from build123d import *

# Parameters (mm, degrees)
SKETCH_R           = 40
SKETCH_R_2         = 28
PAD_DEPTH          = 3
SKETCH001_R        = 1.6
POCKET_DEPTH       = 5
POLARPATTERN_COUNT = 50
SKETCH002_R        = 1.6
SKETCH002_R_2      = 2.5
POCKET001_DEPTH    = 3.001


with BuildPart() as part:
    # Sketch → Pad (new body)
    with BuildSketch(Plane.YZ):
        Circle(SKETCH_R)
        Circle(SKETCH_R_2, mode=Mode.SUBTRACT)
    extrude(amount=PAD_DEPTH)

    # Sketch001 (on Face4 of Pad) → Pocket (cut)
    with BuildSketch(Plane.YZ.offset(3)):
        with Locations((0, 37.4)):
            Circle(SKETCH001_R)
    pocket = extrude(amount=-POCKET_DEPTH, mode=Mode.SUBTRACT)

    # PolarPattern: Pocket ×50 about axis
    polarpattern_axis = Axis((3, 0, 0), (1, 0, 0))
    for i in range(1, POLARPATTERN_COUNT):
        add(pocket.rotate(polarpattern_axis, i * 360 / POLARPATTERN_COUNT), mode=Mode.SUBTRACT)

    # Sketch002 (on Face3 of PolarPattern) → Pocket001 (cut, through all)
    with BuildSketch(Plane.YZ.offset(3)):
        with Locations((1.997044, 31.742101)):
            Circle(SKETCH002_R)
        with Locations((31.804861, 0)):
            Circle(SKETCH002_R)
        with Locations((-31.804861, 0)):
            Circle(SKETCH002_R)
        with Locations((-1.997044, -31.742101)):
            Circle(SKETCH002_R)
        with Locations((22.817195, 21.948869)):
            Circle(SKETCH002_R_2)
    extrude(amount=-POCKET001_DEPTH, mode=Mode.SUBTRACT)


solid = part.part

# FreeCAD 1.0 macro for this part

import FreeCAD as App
import Part
import Sketcher
from FreeCAD import Vector
Q = App.Units.Quantity

doc = App.newDocument("Part")
body = doc.addObject("PartDesign::Body", "Body")

sketch1 = body.newObject("Sketcher::SketchObject", "Sketch")
sketch1.AttachmentSupport = (doc.getObject("YZ_Plane"), [""])
sketch1.MapMode = "FlatFace"
sketch1.addGeometry([
    Part.Circle(Vector(0, 0, 0), Vector(0, 0, 1), 40),
    Part.Circle(Vector(0, 0, 0), Vector(0, 0, 1), 28),
], False)
sketch1.addConstraint([
    Sketcher.Constraint("Coincident", 0, 3, -1, 1),
    Sketcher.Constraint("Coincident", 1, 3, -1, 1),
    Sketcher.Constraint("Diameter", 0, Q("80 mm")),
    Sketcher.Constraint("Diameter", 1, Q("56 mm")),
])
pad1 = body.newObject("PartDesign::Pad", "Pad")
pad1.Profile = sketch1
pad1.Length = 3

sketch2 = body.newObject("Sketcher::SketchObject", "Sketch001")
sketch2.AttachmentSupport = (doc.getObject("YZ_Plane"), [""])
sketch2.MapMode = "FlatFace"
sketch2.AttachmentOffset = App.Placement(Vector(0, 0, 3), App.Rotation())
sketch2.addGeometry(Part.Circle(Vector(0, 37.4, 0), Vector(0, 0, 1), 1.6), False)
sketch2.addConstraint([
    Sketcher.Constraint("PointOnObject", 0, 3, -2),
    Sketcher.Constraint("Diameter", 0, Q("3.2 mm")),
    Sketcher.Constraint("DistanceY", -1, 1, 0, 3, Q("37.4 mm")),
])
pocket1 = body.newObject("PartDesign::Pocket", "Pocket")
pocket1.Profile = sketch2
pocket1.Length = 5
doc.recompute()

polarpattern = body.newObject("PartDesign::PolarPattern", "PolarPattern")
polarpattern.Originals = [pocket1]
polarpattern.Axis = (doc.getObject("X_Axis"), [""])
polarpattern.Angle = 360
polarpattern.Occurrences = 50
body.Tip = polarpattern

sketch3 = body.newObject("Sketcher::SketchObject", "Sketch002")
sketch3.AttachmentSupport = (doc.getObject("YZ_Plane"), [""])
sketch3.MapMode = "FlatFace"
sketch3.AttachmentOffset = App.Placement(Vector(0, 0, 3), App.Rotation())
sketch3.addGeometry([
    Part.Circle(Vector(1.997044, 31.742101, 0), Vector(0, 0, 1), 1.6),
    Part.Circle(Vector(31.804861, 0, 0), Vector(0, 0, 1), 1.6),
    Part.Circle(Vector(-31.804861, 0, 0), Vector(0, 0, 1), 1.6),
    Part.Circle(Vector(-1.997044, -31.742101, 0), Vector(0, 0, 1), 1.6),
    Part.Circle(Vector(22.817195, 21.948869, 0), Vector(0, 0, 1), 2.5),
], False)
sketch3.addConstraint([
    Sketcher.Constraint("Equal", 0, 1),
    Sketcher.Constraint("Equal", 1, 2),
    Sketcher.Constraint("Equal", 2, 3),
    Sketcher.Constraint("Symmetric", 1, 3, 2, 3, -1, 1),
    Sketcher.Constraint("Symmetric", 0, 3, 3, 3, -1, 1),
    Sketcher.Constraint("PointOnObject", 1, 3, -1),
    Sketcher.Constraint("Diameter", 4, Q("5 mm")),
    Sketcher.Constraint("Diameter", 0, Q("3.2 mm")),
    Sketcher.Constraint("DistanceY", -1, 1, 0, 3, Q("31.742101 mm")),
    Sketcher.Constraint("DistanceX", -1, 1, 1, 3, Q("31.804861 mm")),
    Sketcher.Constraint("DistanceY", -1, 1, 4, 3, Q("21.948869 mm")),
    Sketcher.Constraint("DistanceX", 3, 3, 0, 3, Q("3.994088 mm")),
    Sketcher.Constraint("DistanceX", 0, 3, 4, 3, Q("20.820151 mm")),
])
pocket2 = body.newObject("PartDesign::Pocket", "Pocket001")
pocket2.Profile = sketch3
pocket2.Type = "ThroughAll"

doc.recompute()
